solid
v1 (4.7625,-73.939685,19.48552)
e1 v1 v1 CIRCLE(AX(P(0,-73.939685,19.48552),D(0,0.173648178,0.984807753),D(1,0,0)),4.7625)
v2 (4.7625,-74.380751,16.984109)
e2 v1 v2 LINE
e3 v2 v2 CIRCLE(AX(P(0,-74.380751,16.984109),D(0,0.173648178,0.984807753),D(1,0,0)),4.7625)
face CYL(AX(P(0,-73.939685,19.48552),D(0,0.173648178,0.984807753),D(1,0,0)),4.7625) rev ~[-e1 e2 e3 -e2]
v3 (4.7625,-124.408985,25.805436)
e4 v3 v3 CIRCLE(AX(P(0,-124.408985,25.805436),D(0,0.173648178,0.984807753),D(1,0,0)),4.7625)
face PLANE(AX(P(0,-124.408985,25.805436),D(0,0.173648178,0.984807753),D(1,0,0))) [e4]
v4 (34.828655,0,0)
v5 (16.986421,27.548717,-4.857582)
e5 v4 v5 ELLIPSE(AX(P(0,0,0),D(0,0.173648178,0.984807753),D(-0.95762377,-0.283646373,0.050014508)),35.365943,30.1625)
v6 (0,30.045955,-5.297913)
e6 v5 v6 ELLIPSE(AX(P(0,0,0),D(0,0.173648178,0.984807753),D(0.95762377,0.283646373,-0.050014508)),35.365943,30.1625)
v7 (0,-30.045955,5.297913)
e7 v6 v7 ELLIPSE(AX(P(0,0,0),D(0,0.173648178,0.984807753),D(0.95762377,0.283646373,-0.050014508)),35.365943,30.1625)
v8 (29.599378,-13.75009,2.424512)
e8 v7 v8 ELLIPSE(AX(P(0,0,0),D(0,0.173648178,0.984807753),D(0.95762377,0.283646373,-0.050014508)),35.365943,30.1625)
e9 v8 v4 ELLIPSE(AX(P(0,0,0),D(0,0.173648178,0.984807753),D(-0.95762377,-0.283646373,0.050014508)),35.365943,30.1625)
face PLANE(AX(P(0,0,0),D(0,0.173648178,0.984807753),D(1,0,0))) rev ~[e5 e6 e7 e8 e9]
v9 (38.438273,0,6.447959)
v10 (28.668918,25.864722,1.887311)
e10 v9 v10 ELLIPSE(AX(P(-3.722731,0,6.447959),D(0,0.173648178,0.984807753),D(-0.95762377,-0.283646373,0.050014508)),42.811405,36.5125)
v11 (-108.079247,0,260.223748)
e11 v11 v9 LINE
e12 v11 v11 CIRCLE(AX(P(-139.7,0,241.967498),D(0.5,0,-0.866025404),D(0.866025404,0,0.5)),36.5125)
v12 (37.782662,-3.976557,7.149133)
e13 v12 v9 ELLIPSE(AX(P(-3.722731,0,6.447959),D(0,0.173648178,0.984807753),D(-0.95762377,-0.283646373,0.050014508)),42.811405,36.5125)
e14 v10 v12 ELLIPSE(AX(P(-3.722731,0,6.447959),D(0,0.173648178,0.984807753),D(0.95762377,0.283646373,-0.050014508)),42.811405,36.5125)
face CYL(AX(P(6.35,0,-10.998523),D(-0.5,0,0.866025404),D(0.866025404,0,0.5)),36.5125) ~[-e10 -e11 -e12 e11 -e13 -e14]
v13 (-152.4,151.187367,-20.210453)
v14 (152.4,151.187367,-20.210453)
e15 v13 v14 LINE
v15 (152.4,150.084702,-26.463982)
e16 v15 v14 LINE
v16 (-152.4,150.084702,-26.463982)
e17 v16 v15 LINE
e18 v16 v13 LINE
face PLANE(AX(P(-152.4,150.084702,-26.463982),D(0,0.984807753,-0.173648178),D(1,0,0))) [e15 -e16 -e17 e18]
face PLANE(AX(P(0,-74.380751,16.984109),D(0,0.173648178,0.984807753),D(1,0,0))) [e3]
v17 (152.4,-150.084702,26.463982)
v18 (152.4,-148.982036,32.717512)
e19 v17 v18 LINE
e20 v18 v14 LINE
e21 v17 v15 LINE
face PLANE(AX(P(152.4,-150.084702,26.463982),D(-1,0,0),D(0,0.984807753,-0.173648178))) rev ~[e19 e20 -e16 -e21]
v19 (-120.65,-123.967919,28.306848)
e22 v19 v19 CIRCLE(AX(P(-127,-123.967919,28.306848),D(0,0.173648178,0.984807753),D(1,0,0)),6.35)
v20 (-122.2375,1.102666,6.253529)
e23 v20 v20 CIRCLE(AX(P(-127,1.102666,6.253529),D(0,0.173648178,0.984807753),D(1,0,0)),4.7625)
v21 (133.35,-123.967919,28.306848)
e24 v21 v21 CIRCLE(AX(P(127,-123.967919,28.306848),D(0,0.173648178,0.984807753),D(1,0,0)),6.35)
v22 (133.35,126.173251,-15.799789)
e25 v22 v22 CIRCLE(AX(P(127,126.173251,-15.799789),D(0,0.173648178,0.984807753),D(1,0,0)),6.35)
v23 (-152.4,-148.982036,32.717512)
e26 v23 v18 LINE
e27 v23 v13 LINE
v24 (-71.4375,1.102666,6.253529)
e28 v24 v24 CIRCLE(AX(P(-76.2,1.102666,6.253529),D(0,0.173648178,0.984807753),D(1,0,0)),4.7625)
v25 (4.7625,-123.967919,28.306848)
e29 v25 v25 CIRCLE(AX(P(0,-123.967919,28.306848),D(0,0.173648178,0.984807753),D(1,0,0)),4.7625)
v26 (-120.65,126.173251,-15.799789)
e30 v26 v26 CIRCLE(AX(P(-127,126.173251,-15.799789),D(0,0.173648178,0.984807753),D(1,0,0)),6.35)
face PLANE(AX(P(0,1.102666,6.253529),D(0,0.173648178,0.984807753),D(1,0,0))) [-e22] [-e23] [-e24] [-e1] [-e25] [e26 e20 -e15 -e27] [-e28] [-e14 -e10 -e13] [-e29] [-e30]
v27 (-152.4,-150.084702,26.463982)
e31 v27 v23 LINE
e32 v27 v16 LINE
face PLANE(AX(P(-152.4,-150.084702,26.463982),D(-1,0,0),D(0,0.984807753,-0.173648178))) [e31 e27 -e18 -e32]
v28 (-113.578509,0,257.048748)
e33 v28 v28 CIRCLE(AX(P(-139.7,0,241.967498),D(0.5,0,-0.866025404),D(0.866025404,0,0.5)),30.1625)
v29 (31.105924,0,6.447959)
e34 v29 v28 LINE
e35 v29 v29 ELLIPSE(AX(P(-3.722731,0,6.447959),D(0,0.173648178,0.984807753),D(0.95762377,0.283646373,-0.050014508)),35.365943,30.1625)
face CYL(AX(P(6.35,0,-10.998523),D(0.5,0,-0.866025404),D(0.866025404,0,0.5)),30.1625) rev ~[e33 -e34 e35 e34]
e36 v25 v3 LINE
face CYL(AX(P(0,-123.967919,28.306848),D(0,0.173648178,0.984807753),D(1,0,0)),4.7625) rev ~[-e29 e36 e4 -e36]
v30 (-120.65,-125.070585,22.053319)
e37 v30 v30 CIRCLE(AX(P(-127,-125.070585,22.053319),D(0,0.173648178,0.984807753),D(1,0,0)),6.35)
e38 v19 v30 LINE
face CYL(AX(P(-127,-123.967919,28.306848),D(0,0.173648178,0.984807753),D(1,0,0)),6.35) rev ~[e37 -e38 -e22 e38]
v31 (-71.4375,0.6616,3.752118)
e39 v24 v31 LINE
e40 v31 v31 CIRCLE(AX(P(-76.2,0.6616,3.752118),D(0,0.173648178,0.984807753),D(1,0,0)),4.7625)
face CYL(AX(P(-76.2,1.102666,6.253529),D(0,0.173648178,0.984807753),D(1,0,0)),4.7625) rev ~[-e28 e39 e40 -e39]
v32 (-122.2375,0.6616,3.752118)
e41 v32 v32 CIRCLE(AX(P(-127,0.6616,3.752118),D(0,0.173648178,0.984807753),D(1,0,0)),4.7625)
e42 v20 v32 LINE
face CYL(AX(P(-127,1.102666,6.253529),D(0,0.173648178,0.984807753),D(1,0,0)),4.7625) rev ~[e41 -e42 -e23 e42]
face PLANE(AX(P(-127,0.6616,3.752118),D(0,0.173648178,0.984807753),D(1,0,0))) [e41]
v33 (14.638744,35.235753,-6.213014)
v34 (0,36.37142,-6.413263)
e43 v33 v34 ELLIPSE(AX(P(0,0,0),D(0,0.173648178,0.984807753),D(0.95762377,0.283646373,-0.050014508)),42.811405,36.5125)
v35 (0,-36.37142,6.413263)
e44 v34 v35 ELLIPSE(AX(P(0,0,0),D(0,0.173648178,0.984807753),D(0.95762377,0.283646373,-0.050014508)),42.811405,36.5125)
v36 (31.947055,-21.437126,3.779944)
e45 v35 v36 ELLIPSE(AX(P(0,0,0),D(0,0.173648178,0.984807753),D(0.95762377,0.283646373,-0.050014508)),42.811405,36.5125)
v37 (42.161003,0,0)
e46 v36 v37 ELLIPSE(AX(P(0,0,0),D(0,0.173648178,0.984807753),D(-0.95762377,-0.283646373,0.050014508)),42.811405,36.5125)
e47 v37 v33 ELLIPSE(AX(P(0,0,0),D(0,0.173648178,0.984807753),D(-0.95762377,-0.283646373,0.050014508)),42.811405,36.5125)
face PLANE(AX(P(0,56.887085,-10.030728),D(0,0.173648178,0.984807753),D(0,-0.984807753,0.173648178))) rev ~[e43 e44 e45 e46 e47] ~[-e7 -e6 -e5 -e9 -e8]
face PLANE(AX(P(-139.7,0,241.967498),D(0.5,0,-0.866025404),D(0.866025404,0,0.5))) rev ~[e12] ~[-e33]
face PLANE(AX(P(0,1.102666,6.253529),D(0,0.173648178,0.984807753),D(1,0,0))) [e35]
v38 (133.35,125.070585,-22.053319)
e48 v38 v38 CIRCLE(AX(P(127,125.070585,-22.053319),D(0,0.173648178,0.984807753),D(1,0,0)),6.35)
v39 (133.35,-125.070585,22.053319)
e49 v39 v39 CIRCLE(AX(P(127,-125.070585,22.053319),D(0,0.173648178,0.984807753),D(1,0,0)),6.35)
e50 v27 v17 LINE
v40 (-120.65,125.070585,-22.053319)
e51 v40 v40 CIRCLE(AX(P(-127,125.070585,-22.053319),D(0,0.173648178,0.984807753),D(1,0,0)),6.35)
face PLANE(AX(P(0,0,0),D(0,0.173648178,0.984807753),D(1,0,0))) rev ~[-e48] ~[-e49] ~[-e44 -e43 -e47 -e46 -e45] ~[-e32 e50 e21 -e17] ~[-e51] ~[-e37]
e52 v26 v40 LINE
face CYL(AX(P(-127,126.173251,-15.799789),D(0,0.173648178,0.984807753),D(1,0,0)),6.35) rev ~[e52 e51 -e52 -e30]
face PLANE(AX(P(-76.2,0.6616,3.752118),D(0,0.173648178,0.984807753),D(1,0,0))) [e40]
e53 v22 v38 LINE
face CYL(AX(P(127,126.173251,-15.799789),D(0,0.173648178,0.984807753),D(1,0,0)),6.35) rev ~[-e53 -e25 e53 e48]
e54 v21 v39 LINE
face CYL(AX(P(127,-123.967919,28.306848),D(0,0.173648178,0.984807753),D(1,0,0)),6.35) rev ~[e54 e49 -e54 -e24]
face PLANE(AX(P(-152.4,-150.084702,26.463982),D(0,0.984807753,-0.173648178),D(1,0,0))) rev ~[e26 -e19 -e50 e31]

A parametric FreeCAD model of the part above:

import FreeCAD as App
import Part
import Sketcher
from FreeCAD import Vector
Q = App.Units.Quantity


def add_polygon(sketch, points):
    """Adds a closed chain of lines whose ends are joined by coincident constraints."""
    first, n = sketch.GeometryCount, len(points)
    for a, b in zip(points, points[1:] + points[:1]):
        sketch.addGeometry(Part.LineSegment(App.Vector(*a, 0), App.Vector(*b, 0)), False)
    for i in range(n):
        sketch.addConstraint(Sketcher.Constraint("Coincident", first + i, 2, first + (i + 1) % n, 1))

doc = App.newDocument("Part")
body = doc.addObject("PartDesign::Body", "Body")

# Sketch on an angled plane
sketch1 = body.newObject("Sketcher::SketchObject", "Sketch")
sketch1.Placement = App.Placement(Vector(0, 0, 0), App.Rotation(Vector(1, 0, 0), Vector(0, 0.984807753, -0.173648178), Vector(0, 0.173648178, 0.984807753), "ZXY"))
add_polygon(sketch1, [(-152, 152), (-152, -152), (152, -152), (152, 152)])  # lines 0-3
sketch1.addConstraint(Sketcher.Constraint("Vertical", 0))
sketch1.addConstraint(Sketcher.Constraint("Horizontal", 1))
sketch1.addConstraint(Sketcher.Constraint("Vertical", 2))
sketch1.addConstraint(Sketcher.Constraint("Horizontal", 3))
sketch1.addConstraint(Sketcher.Constraint("Symmetric", 0, 2, 2, 2, -1, 1))
sketch1.addConstraint(Sketcher.Constraint("Equal", 3, 0))
sketch1.addConstraint(Sketcher.Constraint("DistanceX", 1, 1, 1, 2, Q("12 in")))
pad1 = body.newObject("PartDesign::Pad", "Pad")
pad1.Profile = sketch1
pad1.Length = Q("0.25 in")

# Sketch on an angled plane
sketch2 = body.newObject("Sketcher::SketchObject", "Sketch001")
sketch2.Placement = App.Placement(Vector(6.35, 0, -10.998523), App.Rotation(Vector(0.866025404, 0, 0.5), Vector(0, -1, 0), Vector(0.5, 0, -0.866025404), "ZXY"))
sketch2.addGeometry(Part.Circle(Vector(0, 0, 0), Vector(0, 0, 1), 37), False)
sketch2.addGeometry(Part.Circle(Vector(0, 0, 0), Vector(0, 0, 1), 30), False)
sketch2.addConstraint(Sketcher.Constraint("Coincident", 0, 3, -1, 1))
sketch2.addConstraint(Sketcher.Constraint("Coincident", 1, 3, -1, 1))
sketch2.addConstraint(Sketcher.Constraint("Diameter", 0, Q("2.875 in")))
sketch2.addConstraint(Sketcher.Constraint("Diameter", 1, Q("2.375 in")))
pad2 = body.newObject("PartDesign::Pad", "Pad001")
pad2.Profile = sketch2
pad2.Type = "TwoLengths"
pad2.Length = Q("11.5 in")
pad2.Length2 = Q("0.5 in")
pad2.Reversed = True

# Sketch on YZ plane
sketch3 = body.newObject("Sketcher::SketchObject", "Sketch002")
sketch3.AttachmentSupport = (doc.getObject("YZ_Plane"), [""])
sketch3.MapMode = "FlatFace"
add_polygon(sketch3, [(57, -44), (57, -10), (-39, 7), (-39, -44)])  # lines 0-3
sketch3.addConstraint(Sketcher.Constraint("Vertical", 0))
sketch3.addConstraint(Sketcher.Constraint("Vertical", 2))
sketch3.addConstraint(Sketcher.Constraint("Horizontal", 3))
sketch3.addConstraint(Sketcher.Constraint("DistanceY", 2, 2, 2, 1, Q("2 in")))
sketch3.addConstraint(Sketcher.Constraint("Angle", 1, Q("170 deg")))
sketch3.addConstraint(Sketcher.Constraint("DistanceY", 0, 1, 0, 2, 33.87026))
sketch3.addConstraint(Sketcher.Constraint("DistanceX", 1, 2, -1, 1, 39.126242))
sketch3.addConstraint(Sketcher.Constraint("DistanceY", 0, 2, -1, 1, 10.030728))
pocket1 = body.newObject("PartDesign::Pocket", "Pocket")
pocket1.Profile = sketch3
pocket1.Type = "ThroughAll"
pocket1.Midplane = True

# Sketch on an angled plane
sketch4 = body.newObject("Sketcher::SketchObject", "Sketch003")
sketch4.Placement = App.Placement(Vector(0, 1.102666, 6.253529), App.Rotation(Vector(1, 0, 0), Vector(0, 0.984807753, -0.173648178), Vector(0, 0.173648178, 0.984807753), "ZXY"))
sketch4.addGeometry(Part.Circle(Vector(0, -76.2, 0), Vector(0, 0, 1), 4.8), False)
sketch4.addGeometry(Part.Circle(Vector(0, -127, 0), Vector(0, 0, 1), 4.8), False)
sketch4.addGeometry(Part.Circle(Vector(-127, 0, 0), Vector(0, 0, 1), 4.8), False)
sketch4.addGeometry(Part.Circle(Vector(-76.2, 0, 0), Vector(0, 0, 1), 4.8), False)
sketch4.addConstraint(Sketcher.Constraint("Equal", 0, 1))
sketch4.addConstraint(Sketcher.Constraint("Equal", 1, 2))
sketch4.addConstraint(Sketcher.Constraint("Equal", 2, 3))
sketch4.addConstraint(Sketcher.Constraint("PointOnObject", 0, 3, -2))
sketch4.addConstraint(Sketcher.Constraint("PointOnObject", 1, 3, -2))
sketch4.addConstraint(Sketcher.Constraint("PointOnObject", 2, 3, -1))
sketch4.addConstraint(Sketcher.Constraint("PointOnObject", 3, 3, -1))
sketch4.addConstraint(Sketcher.Constraint("Diameter", 0, Q("0.375 in")))
sketch4.addConstraint(Sketcher.Constraint("DistanceY", 0, 3, -1, 1, Q("3 in")))
sketch4.addConstraint(Sketcher.Constraint("DistanceY", 1, 3, -1, 1, Q("5 in")))
sketch4.addConstraint(Sketcher.Constraint("DistanceX", 2, 3, -1, 1, Q("5 in")))
sketch4.addConstraint(Sketcher.Constraint("DistanceX", 3, 3, -1, 1, Q("3 in")))
pocket2 = body.newObject("PartDesign::Pocket", "Pocket001")
pocket2.Profile = sketch4
pocket2.Length = Q("0.1 in")

# Sketch on an angled plane
sketch5 = body.newObject("Sketcher::SketchObject", "Sketch004")
sketch5.Placement = App.Placement(Vector(0, 1.102666, 6.253529), App.Rotation(Vector(1, 0, 0), Vector(0, 0.984807753, -0.173648178), Vector(0, 0.173648178, 0.984807753), "ZXY"))
sketch5.addGeometry(Part.Circle(Vector(127, 127, 0), Vector(0, 0, 1), 6), False)
sketch5.addGeometry(Part.Circle(Vector(127, -127, 0), Vector(0, 0, 1), 6), False)
sketch5.addGeometry(Part.Circle(Vector(-127, -127, 0), Vector(0, 0, 1), 6), False)
sketch5.addGeometry(Part.Circle(Vector(-127, 127, 0), Vector(0, 0, 1), 6), False)
sketch5.addConstraint(Sketcher.Constraint("Equal", 0, 1))
sketch5.addConstraint(Sketcher.Constraint("Equal", 1, 2))
sketch5.addConstraint(Sketcher.Constraint("Equal", 2, 3))
sketch5.addConstraint(Sketcher.Constraint("Symmetric", 0, 3, 2, 3, -1, 1))
sketch5.addConstraint(Sketcher.Constraint("Symmetric", 1, 3, 3, 3, -1, 1))
sketch5.addConstraint(Sketcher.Constraint("Symmetric", 1, 3, 2, 3, -2))
sketch5.addConstraint(Sketcher.Constraint("Diameter", 0, Q("0.5 in")))
sketch5.addConstraint(Sketcher.Constraint("DistanceX", -1, 1, 0, 3, Q("5 in")))
sketch5.addConstraint(Sketcher.Constraint("DistanceY", -1, 1, 0, 3, Q("5 in")))
pocket3 = body.newObject("PartDesign::Pocket", "Pocket002")
pocket3.Profile = sketch5
pocket3.Length = Q("1 in")

doc.recompute()
